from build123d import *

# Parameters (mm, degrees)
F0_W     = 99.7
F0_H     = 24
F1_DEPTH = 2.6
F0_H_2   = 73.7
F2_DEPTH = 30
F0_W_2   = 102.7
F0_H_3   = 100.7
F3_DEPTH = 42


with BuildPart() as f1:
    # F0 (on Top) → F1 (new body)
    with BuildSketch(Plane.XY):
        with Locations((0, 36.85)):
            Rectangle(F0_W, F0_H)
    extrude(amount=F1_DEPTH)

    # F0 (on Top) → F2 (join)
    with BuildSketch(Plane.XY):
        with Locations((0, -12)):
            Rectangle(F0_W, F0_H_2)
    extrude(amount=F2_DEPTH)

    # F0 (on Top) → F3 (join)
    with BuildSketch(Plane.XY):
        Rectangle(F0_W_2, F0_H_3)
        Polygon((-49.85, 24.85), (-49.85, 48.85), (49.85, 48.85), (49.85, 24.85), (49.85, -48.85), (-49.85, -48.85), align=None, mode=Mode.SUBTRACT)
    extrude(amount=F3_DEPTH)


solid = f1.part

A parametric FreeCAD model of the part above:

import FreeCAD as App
import Part
import Sketcher

V = App.Vector


def add_polygon(sketch, points):
    """Adds a closed chain of lines whose ends are joined by coincident constraints."""
    first, n = sketch.GeometryCount, len(points)
    for a, b in zip(points, points[1:] + points[:1]):
        sketch.addGeometry(Part.LineSegment(App.Vector(*a, 0), App.Vector(*b, 0)), False)
    for i in range(n):
        sketch.addConstraint(Sketcher.Constraint("Coincident", first + i, 2, first + (i + 1) % n, 1))

doc = App.newDocument("Part")
body = doc.addObject("PartDesign::Body", "Body")

# Sketch on XY plane
sketch1 = body.newObject("Sketcher::SketchObject", "Sketch")
sketch1.AttachmentSupport = (doc.getObject("XY_Plane"), [""])
sketch1.MapMode = "FlatFace"
add_polygon(sketch1, [(-50, 49), (-50, 25), (50, 25), (50, 49)])  # lines 0-3
sketch1.addConstraint([
    Sketcher.Constraint("Vertical", 0),
    Sketcher.Constraint("Horizontal", 1),
    Sketcher.Constraint("Vertical", 2),
    Sketcher.Constraint("Horizontal", 3),
    Sketcher.Constraint("DistanceY", 0, 2, 0, 1, 24.0),
    Sketcher.Constraint("DistanceX", 1, 1, 1, 2, 99.7),
    Sketcher.Constraint("DistanceX", 0, 2, -1, 1, 49.85),
    Sketcher.Constraint("DistanceY", -1, 1, 0, 2, 24.85),
])
pad1 = body.newObject("PartDesign::Pad", "Pad")
pad1.Profile = sketch1
pad1.Length = 2.6

# Sketch on XY plane
sketch2 = body.newObject("Sketcher::SketchObject", "Sketch001")
sketch2.AttachmentSupport = (doc.getObject("XY_Plane"), [""])
sketch2.MapMode = "FlatFace"
add_polygon(sketch2, [(-50, 25), (-50, -49), (50, -49), (50, 25)])  # lines 0-3
sketch2.addConstraint([
    Sketcher.Constraint("Vertical", 0),
    Sketcher.Constraint("Horizontal", 1),
    Sketcher.Constraint("Vertical", 2),
    Sketcher.Constraint("Horizontal", 3),
    Sketcher.Constraint("DistanceX", 1, 1, 1, 2, 99.7),
    Sketcher.Constraint("DistanceY", 0, 2, 0, 1, 73.7),
    Sketcher.Constraint("DistanceX", 0, 2, -1, 1, 49.85),
    Sketcher.Constraint("DistanceY", 0, 2, -1, 1, 48.85),
])
pad2 = body.newObject("PartDesign::Pad", "Pad001")
pad2.Profile = sketch2
pad2.Length = 30

# Sketch on XY plane
sketch3 = body.newObject("Sketcher::SketchObject", "Sketch002")
sketch3.AttachmentSupport = (doc.getObject("XY_Plane"), [""])
sketch3.MapMode = "FlatFace"
add_polygon(sketch3, [(-51, 50), (-51, -50), (51, -50), (51, 50)])  # lines 0-3
add_polygon(sketch3, [(-50, -49), (-50, 49), (50, 49), (50, -49)])  # lines 4-7
sketch3.addConstraint([
    Sketcher.Constraint("Vertical", 0),
    Sketcher.Constraint("Horizontal", 1),
    Sketcher.Constraint("Vertical", 2),
    Sketcher.Constraint("Horizontal", 3),
    Sketcher.Constraint("Vertical", 4),
    Sketcher.Constraint("Horizontal", 5),
    Sketcher.Constraint("Vertical", 6),
    Sketcher.Constraint("Horizontal", 7),
    Sketcher.Constraint("Symmetric", 0, 2, 2, 2, -1, 1),
    Sketcher.Constraint("Symmetric", 4, 2, 6, 2, -1, 1),
    Sketcher.Constraint("DistanceX", 1, 1, 1, 2, 102.7),
    Sketcher.Constraint("DistanceX", 5, 1, 5, 2, 99.7),
    Sketcher.Constraint("DistanceY", 0, 2, 0, 1, 100.7),
    Sketcher.Constraint("DistanceY", 4, 1, 4, 2, 97.7),
])
pad3 = body.newObject("PartDesign::Pad", "Pad002")
pad3.Profile = sketch3
pad3.Length = 42

doc.recompute()
